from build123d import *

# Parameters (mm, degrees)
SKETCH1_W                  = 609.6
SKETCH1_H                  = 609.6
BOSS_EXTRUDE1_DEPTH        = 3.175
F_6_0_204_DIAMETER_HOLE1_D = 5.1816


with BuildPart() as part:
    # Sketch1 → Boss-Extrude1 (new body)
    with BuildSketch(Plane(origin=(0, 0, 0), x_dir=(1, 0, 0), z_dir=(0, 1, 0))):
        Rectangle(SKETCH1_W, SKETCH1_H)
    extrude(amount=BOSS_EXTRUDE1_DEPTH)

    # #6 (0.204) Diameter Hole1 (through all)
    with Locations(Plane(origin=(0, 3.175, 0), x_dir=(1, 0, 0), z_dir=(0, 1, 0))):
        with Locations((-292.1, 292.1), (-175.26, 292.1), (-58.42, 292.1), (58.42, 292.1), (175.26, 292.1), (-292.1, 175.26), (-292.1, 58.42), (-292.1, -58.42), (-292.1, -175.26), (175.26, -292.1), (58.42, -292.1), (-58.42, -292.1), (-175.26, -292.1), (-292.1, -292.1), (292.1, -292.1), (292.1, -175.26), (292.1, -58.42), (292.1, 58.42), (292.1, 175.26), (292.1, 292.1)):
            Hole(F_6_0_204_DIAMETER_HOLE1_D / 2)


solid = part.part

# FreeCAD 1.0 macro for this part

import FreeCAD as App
import Part
import Sketcher
from FreeCAD import Vector
Q = App.Units.Quantity

doc = App.newDocument("Part")
body = doc.addObject("PartDesign::Body", "Body")

# Sketch on XZ plane
sketch1 = doc.addObject("Sketcher::SketchObject", "Sketch")
body.addObject(sketch1)
sketch1.AttachmentSupport = (doc.XZ_Plane, [""])
sketch1.MapMode = "FlatFace"
sketch1.addGeometry([
    Part.LineSegment(Vector(-305, -305, 0), Vector(-305, 305, 0)),
    Part.LineSegment(Vector(-305, 305, 0), Vector(305, 305, 0)),
    Part.LineSegment(Vector(305, 305, 0), Vector(305, -305, 0)),
    Part.LineSegment(Vector(305, -305, 0), Vector(-305, -305, 0)),
], False)
sketch1.addConstraint([
    Sketcher.Constraint("Coincident", 0, 2, 1, 1),
    Sketcher.Constraint("Coincident", 1, 2, 2, 1),
    Sketcher.Constraint("Coincident", 2, 2, 3, 1),
    Sketcher.Constraint("Coincident", 3, 2, 0, 1),
    Sketcher.Constraint("Vertical", 0),
    Sketcher.Constraint("Horizontal", 1),
    Sketcher.Constraint("Vertical", 2),
    Sketcher.Constraint("Horizontal", 3),
    Sketcher.Constraint("Symmetric", 0, 2, 2, 2, -1, 1),
    Sketcher.Constraint("Equal", 3, 0),
    Sketcher.Constraint("DistanceX", 1, 1, 1, 2, Q("24 in")),
])
pad1 = doc.addObject("PartDesign::Pad", "Pad")
body.addObject(pad1)
pad1.Profile = sketch1
pad1.Length = Q("0.125 in")
pad1.Reversed = True

# Sketch on XZ plane
sketch2 = doc.addObject("Sketcher::SketchObject", "Sketch001")
body.addObject(sketch2)
sketch2.AttachmentSupport = (doc.XZ_Plane, [""])
sketch2.MapMode = "FlatFace"
sketch2.AttachmentOffset = App.Placement(Vector(0, 0, -0.125 * 25.4), App.Rotation())
sketch2.addGeometry([
    Part.Circle(Vector(-292.1, -292.1, 0), Vector(0, 0, 1), 2.6),  # 0
    Part.Circle(Vector(-175.3, -292.1, 0), Vector(0, 0, 1), 2.6),  # 1
    Part.Circle(Vector(-58.4, -292.1, 0), Vector(0, 0, 1), 2.6),  # 2
    Part.Circle(Vector(58.4, -292.1, 0), Vector(0, 0, 1), 2.6),  # 3
    Part.Circle(Vector(175.3, -292.1, 0), Vector(0, 0, 1), 2.6),  # 4
    Part.Circle(Vector(-292.1, -175.3, 0), Vector(0, 0, 1), 2.6),  # 5
    Part.Circle(Vector(-292.1, -58.4, 0), Vector(0, 0, 1), 2.6),  # 6
    Part.Circle(Vector(-292.1, 58.4, 0), Vector(0, 0, 1), 2.6),  # 7
    Part.Circle(Vector(-292.1, 175.3, 0), Vector(0, 0, 1), 2.6),  # 8
    Part.Circle(Vector(175.3, 292.1, 0), Vector(0, 0, 1), 2.6),  # 9
    Part.Circle(Vector(58.4, 292.1, 0), Vector(0, 0, 1), 2.6),  # 10
    Part.Circle(Vector(-58.4, 292.1, 0), Vector(0, 0, 1), 2.6),  # 11
    Part.Circle(Vector(-175.3, 292.1, 0), Vector(0, 0, 1), 2.6),  # 12
    Part.Circle(Vector(-292.1, 292.1, 0), Vector(0, 0, 1), 2.6),  # 13
    Part.Circle(Vector(292.1, 292.1, 0), Vector(0, 0, 1), 2.6),  # 14
    Part.Circle(Vector(292.1, 175.3, 0), Vector(0, 0, 1), 2.6),  # 15
    Part.Circle(Vector(292.1, 58.4, 0), Vector(0, 0, 1), 2.6),  # 16
    Part.Circle(Vector(292.1, -58.4, 0), Vector(0, 0, 1), 2.6),  # 17
    Part.Circle(Vector(292.1, -175.3, 0), Vector(0, 0, 1), 2.6),  # 18
    Part.Circle(Vector(292.1, -292.1, 0), Vector(0, 0, 1), 2.6),  # 19
], False)
sketch2.addConstraint([
    Sketcher.Constraint("Equal", 0, 1),
    Sketcher.Constraint("Equal", 1, 2),
    Sketcher.Constraint("Equal", 2, 3),
    Sketcher.Constraint("Equal", 3, 4),
    Sketcher.Constraint("Equal", 4, 5),
    Sketcher.Constraint("Equal", 5, 6),
    Sketcher.Constraint("Equal", 6, 7),
    Sketcher.Constraint("Equal", 7, 8),
    Sketcher.Constraint("Equal", 8, 9),
    Sketcher.Constraint("Equal", 9, 10),
    Sketcher.Constraint("Equal", 10, 11),
    Sketcher.Constraint("Equal", 11, 12),
    Sketcher.Constraint("Equal", 12, 13),
    Sketcher.Constraint("Equal", 13, 14),
    Sketcher.Constraint("Equal", 14, 15),
    Sketcher.Constraint("Equal", 15, 16),
    Sketcher.Constraint("Equal", 16, 17),
    Sketcher.Constraint("Equal", 17, 18),
    Sketcher.Constraint("Equal", 18, 19),
    Sketcher.Constraint("Symmetric", 1, 3, 9, 3, -1, 1),
    Sketcher.Constraint("Symmetric", 2, 3, 10, 3, -1, 1),
    Sketcher.Constraint("Symmetric", 3, 3, 11, 3, -1, 1),
    Sketcher.Constraint("Symmetric", 4, 3, 12, 3, -1, 1),
    Sketcher.Constraint("Symmetric", 0, 3, 14, 3, -1, 1),
    Sketcher.Constraint("Symmetric", 5, 3, 15, 3, -1, 1),
    Sketcher.Constraint("Symmetric", 6, 3, 16, 3, -1, 1),
    Sketcher.Constraint("Symmetric", 7, 3, 17, 3, -1, 1),
    Sketcher.Constraint("Symmetric", 8, 3, 18, 3, -1, 1),
    Sketcher.Constraint("Symmetric", 13, 3, 19, 3, -1, 1),
    Sketcher.Constraint("Symmetric", 2, 3, 3, 3, -2),
    Sketcher.Constraint("Symmetric", 1, 3, 4, 3, -2),
    Sketcher.Constraint("Symmetric", 13, 3, 14, 3, -2),
    Sketcher.Constraint("Symmetric", 8, 3, 15, 3, -2),
    Sketcher.Constraint("Symmetric", 7, 3, 16, 3, -2),
    Sketcher.Constraint("Horizontal", 0, 3, 1, 3),
    Sketcher.Constraint("Horizontal", 1, 3, 2, 3),
    Sketcher.Constraint("Vertical", 0, 3, 5, 3),
    Sketcher.Constraint("Vertical", 5, 3, 6, 3),
    Sketcher.Constraint("Diameter", 0, Q("0.204 in")),
    Sketcher.Constraint("DistanceY", 4, 3, 9, 3, Q("23 in")),
    Sketcher.Constraint("DistanceX", 13, 3, 14, 3, Q("23 in")),
    Sketcher.Constraint("DistanceX", 1, 3, -1, 1, Q("6.9 in")),
    Sketcher.Constraint("DistanceX", 2, 3, -1, 1, Q("2.3 in")),
    Sketcher.Constraint("DistanceY", 5, 3, -1, 1, Q("6.9 in")),
    Sketcher.Constraint("DistanceY", 6, 3, -1, 1, Q("2.3 in")),
])
doc.recompute()
hole = doc.addObject("PartDesign::Hole", "Hole")
body.addObject(hole)
hole.Profile = sketch2
hole.ThreadType = "None"
hole.Diameter = Q("0.204 in")
hole.DepthType = "ThroughAll"
hole.Reversed = True

doc.recompute()
